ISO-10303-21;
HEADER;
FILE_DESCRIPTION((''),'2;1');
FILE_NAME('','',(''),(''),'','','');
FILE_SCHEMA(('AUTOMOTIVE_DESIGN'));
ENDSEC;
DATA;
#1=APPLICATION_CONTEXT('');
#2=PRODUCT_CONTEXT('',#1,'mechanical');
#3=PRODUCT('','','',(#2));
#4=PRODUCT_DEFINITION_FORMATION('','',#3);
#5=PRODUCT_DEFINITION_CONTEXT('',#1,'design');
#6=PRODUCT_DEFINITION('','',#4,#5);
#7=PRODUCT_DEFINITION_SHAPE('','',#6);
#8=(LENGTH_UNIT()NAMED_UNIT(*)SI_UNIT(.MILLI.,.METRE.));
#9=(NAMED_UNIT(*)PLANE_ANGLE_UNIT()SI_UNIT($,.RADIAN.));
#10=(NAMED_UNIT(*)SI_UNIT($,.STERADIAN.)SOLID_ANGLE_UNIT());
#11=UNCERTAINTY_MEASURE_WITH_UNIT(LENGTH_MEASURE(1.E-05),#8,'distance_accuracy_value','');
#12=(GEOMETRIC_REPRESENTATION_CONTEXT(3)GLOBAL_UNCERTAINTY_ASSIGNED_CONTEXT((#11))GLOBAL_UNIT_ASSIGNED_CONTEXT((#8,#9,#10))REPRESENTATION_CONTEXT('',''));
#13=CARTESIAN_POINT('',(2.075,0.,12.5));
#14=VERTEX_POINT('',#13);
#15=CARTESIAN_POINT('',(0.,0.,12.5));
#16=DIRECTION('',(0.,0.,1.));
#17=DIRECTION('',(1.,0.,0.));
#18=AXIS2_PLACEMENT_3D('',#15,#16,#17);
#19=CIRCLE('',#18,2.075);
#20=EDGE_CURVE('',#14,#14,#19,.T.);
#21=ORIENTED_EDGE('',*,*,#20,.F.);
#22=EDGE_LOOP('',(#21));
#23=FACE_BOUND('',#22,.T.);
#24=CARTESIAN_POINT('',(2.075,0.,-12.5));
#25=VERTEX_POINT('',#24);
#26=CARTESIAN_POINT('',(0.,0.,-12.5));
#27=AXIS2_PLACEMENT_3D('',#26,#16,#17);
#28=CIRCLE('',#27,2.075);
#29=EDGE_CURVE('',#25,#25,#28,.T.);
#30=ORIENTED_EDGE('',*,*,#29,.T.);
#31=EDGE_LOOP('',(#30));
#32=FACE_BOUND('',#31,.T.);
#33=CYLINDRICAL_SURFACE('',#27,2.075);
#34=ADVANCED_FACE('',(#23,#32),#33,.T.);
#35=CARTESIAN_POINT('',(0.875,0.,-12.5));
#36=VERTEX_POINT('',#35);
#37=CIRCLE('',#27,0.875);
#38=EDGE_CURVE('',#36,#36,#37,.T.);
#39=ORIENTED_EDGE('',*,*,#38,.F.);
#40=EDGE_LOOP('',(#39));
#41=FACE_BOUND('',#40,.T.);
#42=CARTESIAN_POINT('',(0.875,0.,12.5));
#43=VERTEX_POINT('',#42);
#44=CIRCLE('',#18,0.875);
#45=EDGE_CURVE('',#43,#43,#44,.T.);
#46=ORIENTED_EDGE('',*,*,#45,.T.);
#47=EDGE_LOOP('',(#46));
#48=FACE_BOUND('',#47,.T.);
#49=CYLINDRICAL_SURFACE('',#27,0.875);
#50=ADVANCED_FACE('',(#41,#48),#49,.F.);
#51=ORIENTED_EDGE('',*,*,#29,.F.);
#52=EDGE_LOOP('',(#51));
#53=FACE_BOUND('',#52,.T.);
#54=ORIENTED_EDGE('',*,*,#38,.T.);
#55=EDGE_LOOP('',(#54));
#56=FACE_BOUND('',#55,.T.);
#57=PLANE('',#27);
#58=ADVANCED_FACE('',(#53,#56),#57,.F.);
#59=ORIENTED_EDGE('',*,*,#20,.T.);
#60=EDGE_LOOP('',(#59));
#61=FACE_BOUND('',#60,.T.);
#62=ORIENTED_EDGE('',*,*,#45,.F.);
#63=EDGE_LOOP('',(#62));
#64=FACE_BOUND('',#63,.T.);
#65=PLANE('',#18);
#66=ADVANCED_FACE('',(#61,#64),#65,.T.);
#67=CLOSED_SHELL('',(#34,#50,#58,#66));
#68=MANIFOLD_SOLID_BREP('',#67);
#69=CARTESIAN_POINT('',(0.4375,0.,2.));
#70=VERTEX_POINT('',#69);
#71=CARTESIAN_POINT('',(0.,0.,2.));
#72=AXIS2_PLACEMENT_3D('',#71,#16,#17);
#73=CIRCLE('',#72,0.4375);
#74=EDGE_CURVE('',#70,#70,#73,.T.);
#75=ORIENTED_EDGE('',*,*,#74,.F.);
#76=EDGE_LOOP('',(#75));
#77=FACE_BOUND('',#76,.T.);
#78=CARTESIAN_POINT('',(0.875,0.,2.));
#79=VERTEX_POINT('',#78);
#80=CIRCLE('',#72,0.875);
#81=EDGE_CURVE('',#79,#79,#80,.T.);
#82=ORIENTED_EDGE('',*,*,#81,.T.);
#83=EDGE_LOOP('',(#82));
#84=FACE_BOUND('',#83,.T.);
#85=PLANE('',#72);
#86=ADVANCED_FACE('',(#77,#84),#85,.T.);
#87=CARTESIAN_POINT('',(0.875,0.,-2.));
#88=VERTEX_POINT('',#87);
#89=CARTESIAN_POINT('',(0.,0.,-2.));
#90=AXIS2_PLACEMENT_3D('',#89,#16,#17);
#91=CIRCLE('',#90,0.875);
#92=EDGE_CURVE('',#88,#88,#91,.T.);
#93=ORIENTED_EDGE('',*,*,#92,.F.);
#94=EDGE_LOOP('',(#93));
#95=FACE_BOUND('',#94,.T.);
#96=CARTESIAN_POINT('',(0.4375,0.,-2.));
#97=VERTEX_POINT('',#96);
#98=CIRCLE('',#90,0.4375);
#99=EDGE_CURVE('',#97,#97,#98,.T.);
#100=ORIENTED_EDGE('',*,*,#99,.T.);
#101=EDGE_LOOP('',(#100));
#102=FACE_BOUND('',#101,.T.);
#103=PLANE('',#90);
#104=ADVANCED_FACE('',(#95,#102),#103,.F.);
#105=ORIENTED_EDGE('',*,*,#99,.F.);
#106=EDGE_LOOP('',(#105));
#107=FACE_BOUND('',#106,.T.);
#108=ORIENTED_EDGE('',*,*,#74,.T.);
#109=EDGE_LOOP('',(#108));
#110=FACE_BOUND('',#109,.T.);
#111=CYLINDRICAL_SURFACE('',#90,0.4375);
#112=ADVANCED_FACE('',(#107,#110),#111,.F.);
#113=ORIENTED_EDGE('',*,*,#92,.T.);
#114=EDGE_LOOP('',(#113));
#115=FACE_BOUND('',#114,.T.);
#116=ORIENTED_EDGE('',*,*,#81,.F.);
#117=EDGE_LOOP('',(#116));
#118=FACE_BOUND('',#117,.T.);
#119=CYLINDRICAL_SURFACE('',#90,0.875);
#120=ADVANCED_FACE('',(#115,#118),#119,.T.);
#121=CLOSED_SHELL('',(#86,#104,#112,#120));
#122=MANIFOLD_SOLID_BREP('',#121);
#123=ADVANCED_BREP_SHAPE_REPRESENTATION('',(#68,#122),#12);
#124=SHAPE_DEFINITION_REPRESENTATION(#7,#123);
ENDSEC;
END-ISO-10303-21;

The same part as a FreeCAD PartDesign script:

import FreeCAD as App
import Part
import Sketcher

V = App.Vector
Q = App.Units.Quantity

doc = App.newDocument("Part")
body = doc.addObject("PartDesign::Body", "Body")

sketch1 = doc.addObject("Sketcher::SketchObject", "Sketch")
body.addObject(sketch1)
sketch1.AttachmentSupport = (doc.XY_Plane, [""])
sketch1.MapMode = "FlatFace"
sketch1.addGeometry([
    Part.Circle(V(0, 0, 0), V(0, 0, 1), 2.1),
    Part.Circle(V(0, 0, 0), V(0, 0, 1), 0.9),
], False)
sketch1.addConstraint([
    Sketcher.Constraint("Coincident", 0, 3, -1, 1),
    Sketcher.Constraint("Coincident", 1, 3, -1, 1),
    Sketcher.Constraint("Diameter", 0, Q("4.15 mm")),
    Sketcher.Constraint("Diameter", 1, Q("1.75 mm")),
])
pad1 = doc.addObject("PartDesign::Pad", "Pad")
body.addObject(pad1)
pad1.Profile = sketch1
pad1.Type = "TwoLengths"
pad1.Length = 12.5
pad1.Length2 = 12.5
body2 = doc.addObject("PartDesign::Body", "Body001")

sketch2 = doc.addObject("Sketcher::SketchObject", "Sketch001")
body2.addObject(sketch2)
sketch2.AttachmentSupport = (doc.getObject("XY_Plane001"), [""])
sketch2.MapMode = "FlatFace"
sketch2.addGeometry([
    Part.Circle(V(0, 0, 0), V(0, 0, 1), 0.88),
    Part.Circle(V(0, 0, 0), V(0, 0, 1), 0.44),
], False)
sketch2.addConstraint([
    Sketcher.Constraint("Coincident", 0, 3, -1, 1),
    Sketcher.Constraint("Coincident", 1, 3, -1, 1),
    Sketcher.Constraint("Diameter", 0, Q("1.75 mm")),
    Sketcher.Constraint("Diameter", 1, Q("0.875 mm")),
])
pad2 = doc.addObject("PartDesign::Pad", "Pad001")
body2.addObject(pad2)
pad2.Profile = sketch2
pad2.Type = "TwoLengths"
pad2.Length = 2
pad2.Length2 = 2

doc.recompute()
